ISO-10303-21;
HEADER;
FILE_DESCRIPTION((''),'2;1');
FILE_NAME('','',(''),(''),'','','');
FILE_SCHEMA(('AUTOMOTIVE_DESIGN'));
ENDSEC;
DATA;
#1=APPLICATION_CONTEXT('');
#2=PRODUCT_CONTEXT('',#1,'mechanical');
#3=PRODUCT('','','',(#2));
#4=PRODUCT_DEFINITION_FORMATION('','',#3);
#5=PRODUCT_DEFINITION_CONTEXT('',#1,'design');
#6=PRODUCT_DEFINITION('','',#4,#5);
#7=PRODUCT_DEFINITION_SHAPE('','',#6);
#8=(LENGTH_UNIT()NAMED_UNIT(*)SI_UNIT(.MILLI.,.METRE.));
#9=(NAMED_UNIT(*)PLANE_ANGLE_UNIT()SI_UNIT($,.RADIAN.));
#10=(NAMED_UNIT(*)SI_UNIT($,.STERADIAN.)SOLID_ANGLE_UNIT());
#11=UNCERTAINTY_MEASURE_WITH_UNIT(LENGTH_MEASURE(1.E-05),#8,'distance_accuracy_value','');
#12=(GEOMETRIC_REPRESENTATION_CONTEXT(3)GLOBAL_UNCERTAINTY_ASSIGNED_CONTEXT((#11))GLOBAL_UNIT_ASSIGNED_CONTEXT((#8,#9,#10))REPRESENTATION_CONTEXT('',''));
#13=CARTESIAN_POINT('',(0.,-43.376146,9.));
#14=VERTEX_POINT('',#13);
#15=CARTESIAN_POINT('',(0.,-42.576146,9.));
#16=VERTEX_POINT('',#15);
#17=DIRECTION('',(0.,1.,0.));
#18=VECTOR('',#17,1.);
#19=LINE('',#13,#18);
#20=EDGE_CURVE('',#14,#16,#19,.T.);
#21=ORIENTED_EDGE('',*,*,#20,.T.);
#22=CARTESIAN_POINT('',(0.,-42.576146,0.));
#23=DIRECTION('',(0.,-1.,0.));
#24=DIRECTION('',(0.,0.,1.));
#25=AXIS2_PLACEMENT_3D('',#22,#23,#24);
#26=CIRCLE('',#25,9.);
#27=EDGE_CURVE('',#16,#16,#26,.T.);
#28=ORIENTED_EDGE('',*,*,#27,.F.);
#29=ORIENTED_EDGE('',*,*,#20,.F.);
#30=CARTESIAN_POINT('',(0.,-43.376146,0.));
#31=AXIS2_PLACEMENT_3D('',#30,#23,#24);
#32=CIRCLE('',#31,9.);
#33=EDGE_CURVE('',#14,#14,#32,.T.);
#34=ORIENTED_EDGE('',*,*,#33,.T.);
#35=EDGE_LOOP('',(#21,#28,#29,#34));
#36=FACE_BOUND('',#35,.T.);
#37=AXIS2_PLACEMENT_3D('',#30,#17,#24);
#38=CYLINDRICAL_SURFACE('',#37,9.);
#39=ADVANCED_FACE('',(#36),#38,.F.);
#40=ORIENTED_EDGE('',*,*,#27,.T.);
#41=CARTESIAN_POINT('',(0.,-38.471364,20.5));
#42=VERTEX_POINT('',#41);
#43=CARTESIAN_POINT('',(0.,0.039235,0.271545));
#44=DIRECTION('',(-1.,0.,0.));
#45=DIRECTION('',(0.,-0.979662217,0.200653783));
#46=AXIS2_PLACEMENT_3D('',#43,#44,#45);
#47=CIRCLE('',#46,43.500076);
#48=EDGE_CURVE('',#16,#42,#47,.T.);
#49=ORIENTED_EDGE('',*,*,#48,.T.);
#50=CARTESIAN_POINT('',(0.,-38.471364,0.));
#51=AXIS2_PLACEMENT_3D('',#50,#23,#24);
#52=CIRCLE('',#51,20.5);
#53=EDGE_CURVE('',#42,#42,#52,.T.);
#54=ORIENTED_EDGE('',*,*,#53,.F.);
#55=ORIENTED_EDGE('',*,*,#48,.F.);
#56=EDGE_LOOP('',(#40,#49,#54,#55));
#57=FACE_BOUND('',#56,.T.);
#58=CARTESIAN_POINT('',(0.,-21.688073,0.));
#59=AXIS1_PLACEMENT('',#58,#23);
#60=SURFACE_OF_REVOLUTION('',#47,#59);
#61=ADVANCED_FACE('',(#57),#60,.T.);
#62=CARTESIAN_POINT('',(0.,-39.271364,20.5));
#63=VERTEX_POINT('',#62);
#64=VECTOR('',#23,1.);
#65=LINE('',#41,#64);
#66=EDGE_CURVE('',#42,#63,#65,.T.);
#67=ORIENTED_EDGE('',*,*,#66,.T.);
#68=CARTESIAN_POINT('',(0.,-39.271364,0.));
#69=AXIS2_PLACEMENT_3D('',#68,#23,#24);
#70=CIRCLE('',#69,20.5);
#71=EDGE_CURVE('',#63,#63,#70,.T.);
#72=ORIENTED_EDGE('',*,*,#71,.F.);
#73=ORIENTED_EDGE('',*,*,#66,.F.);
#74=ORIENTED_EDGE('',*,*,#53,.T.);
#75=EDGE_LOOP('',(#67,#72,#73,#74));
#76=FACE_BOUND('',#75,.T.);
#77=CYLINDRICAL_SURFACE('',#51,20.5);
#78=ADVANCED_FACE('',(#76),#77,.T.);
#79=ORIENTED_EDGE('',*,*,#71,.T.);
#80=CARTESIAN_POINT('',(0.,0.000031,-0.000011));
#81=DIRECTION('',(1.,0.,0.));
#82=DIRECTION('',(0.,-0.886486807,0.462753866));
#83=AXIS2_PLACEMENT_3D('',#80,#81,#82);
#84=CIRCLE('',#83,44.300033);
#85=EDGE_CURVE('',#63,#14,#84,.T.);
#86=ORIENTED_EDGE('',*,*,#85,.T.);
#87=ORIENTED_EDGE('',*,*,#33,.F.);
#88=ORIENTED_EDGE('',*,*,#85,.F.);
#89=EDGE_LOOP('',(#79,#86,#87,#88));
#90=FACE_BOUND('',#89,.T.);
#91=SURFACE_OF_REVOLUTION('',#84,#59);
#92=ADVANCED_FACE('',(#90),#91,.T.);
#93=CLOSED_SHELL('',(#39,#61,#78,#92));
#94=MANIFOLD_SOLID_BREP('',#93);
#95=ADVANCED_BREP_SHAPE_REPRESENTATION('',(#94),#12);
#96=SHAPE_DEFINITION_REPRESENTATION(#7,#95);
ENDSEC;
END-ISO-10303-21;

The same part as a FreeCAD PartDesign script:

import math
import FreeCAD as App
import Part
import Sketcher
from FreeCAD import Vector
Q = App.Units.Quantity

doc = App.newDocument("Part")
body = doc.addObject("PartDesign::Body", "Body")

sketch1 = body.newObject("Sketcher::SketchObject", "Sketch")
sketch1.AttachmentSupport = (doc.getObject("YZ_Plane"), [""])
sketch1.MapMode = "FlatFace"
sketch1.addGeometry([
    Part.ArcOfCircle(Part.Circle(Vector(0.000031, -0.000011, 0), Vector(0, 0, 1), 44.300033), math.radians(152.435047), math.radians(168.278169)),
    Part.LineSegment(Vector(-43.376146, 9, 0), Vector(-42.576146, 9, 0)),
    Part.ArcOfCircle(Part.Circle(Vector(0.039235, 0.271545, 0), Vector(0, 0, 1), 43.500076), math.radians(152.28841), math.radians(168.424807)),
    Part.LineSegment(Vector(-38.471364, 20.5, 0), Vector(-39.271364, 20.5, 0)),
], False)
sketch1.addConstraint([
    Sketcher.Constraint("Coincident", 0, 2, 1, 1),
    Sketcher.Constraint("Coincident", 1, 2, 2, 2),
    Sketcher.Constraint("Coincident", 2, 1, 3, 1),
    Sketcher.Constraint("Coincident", 3, 2, 0, 1),
    Sketcher.Constraint("Horizontal", 1),
    Sketcher.Constraint("Horizontal", 3),
    Sketcher.Constraint("Equal", 1, 3),
    Sketcher.Constraint("DistanceX", 1, 1, 1, 2, Q("0.8 mm")),
    Sketcher.Constraint("DistanceY", -1, 1, 0, 2, Q("9 mm")),
    Sketcher.Constraint("DistanceY", -1, 1, 2, 1, Q("20.5 mm")),
    Sketcher.Constraint("Radius", 0, Q("44.300033 mm")),
    Sketcher.Constraint("Radius", 2, Q("43.500076 mm")),
    Sketcher.Constraint("DistanceX", 2, 1, 2, 3, Q("38.510599 mm")),
    Sketcher.Constraint("DistanceX", -1, 1, 2, 3, Q("0.039235 mm")),
])
revolution = body.newObject("PartDesign::Revolution", "Revolution")
revolution.Profile = sketch1
revolution.ReferenceAxis = (sketch1, ["H_Axis"])
revolution.Angle = 360

doc.recompute()
